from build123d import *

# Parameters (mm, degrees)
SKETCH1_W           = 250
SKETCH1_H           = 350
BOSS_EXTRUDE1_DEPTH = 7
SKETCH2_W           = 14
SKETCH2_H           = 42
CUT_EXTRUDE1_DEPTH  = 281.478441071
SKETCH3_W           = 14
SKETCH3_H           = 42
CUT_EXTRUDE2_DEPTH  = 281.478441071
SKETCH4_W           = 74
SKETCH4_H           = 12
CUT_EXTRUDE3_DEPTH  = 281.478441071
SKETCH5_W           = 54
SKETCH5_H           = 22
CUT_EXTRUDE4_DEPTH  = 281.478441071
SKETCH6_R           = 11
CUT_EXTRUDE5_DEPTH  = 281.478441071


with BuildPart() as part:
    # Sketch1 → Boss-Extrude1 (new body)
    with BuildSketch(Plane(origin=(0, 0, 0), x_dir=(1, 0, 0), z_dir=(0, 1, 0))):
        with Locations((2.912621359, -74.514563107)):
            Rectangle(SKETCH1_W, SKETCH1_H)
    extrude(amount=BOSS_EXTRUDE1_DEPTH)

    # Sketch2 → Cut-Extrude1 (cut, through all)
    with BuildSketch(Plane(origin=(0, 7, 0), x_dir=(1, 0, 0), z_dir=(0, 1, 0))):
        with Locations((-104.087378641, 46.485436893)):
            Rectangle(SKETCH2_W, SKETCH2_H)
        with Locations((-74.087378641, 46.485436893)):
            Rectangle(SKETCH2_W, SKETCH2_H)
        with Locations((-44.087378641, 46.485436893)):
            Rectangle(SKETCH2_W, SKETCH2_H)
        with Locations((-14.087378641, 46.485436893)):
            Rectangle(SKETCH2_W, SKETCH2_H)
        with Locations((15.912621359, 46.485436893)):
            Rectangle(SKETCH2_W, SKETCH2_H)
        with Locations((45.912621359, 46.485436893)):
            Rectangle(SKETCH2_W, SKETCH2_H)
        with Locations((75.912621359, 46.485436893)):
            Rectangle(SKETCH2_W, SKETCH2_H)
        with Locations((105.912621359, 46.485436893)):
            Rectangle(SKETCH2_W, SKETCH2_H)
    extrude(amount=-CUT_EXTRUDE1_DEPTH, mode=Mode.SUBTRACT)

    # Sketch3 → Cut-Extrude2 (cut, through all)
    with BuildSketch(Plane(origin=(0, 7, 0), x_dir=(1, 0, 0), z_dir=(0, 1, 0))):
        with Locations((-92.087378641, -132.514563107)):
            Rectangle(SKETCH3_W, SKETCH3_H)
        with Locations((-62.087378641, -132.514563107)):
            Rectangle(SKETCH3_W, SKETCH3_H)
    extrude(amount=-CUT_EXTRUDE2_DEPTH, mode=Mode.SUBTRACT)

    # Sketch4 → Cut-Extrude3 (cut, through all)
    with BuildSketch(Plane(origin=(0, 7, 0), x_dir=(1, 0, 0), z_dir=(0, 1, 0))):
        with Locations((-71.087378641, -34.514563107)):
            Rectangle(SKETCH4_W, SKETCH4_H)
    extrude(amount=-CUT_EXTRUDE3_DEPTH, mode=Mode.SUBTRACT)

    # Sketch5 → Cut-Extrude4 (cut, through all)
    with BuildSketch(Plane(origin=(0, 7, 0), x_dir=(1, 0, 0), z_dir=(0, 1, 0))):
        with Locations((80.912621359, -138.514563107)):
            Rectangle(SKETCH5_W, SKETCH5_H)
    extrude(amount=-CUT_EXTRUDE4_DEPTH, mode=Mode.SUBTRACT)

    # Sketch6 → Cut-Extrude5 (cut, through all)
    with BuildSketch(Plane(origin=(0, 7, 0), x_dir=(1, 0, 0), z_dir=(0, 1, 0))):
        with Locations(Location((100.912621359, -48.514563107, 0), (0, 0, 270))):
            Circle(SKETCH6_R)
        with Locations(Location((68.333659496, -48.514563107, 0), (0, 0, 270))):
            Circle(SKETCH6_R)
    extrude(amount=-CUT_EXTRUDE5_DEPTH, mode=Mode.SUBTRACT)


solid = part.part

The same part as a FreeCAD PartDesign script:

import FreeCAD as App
import Part
import Sketcher
from FreeCAD import Vector
Q = App.Units.Quantity

doc = App.newDocument("Part")
params = doc.addObject("Spreadsheet::Sheet", "Params")
for row, (alias, value) in enumerate([
    ("sketch1_width", "250 mm"),
    ("sketch1_height", "350 mm"),
    ("pad1_length", "7 mm"),
    ("sketch2_width", "14 mm"),
    ("sketch2_height", "42 mm"),
    ("sketch3_width", "14 mm"),
    ("sketch3_height", "42 mm"),
    ("sketch4_width", "74 mm"),
    ("sketch4_height", "12 mm"),
    ("sketch5_width", "54 mm"),
    ("sketch5_height", "22 mm"),
    ("sketch6_diameter", "22 mm"),
], start=1):
    params.set(f"A{row}", alias)
    params.set(f"B{row}", "=" + value)
    params.setAlias(f"B{row}", alias)

body = doc.addObject("PartDesign::Body", "Body")

# Sketch on XZ plane
sketch1 = doc.addObject("Sketcher::SketchObject", "Sketch")
body.addObject(sketch1)
sketch1.AttachmentSupport = (doc.XZ_Plane, [""])
sketch1.MapMode = "FlatFace"
sketch1.addGeometry(Part.LineSegment(Vector(-122.087379, -100.485437, 0), Vector(-122.087379, 249.514563, 0)), False)
sketch1.addGeometry(Part.LineSegment(Vector(-122.087379, 249.514563, 0), Vector(127.912621, 249.514563, 0)), False)
sketch1.addGeometry(Part.LineSegment(Vector(127.912621, 249.514563, 0), Vector(127.912621, -100.485437, 0)), False)
sketch1.addGeometry(Part.LineSegment(Vector(127.912621, -100.485437, 0), Vector(-122.087379, -100.485437, 0)), False)
sketch1.addConstraint(Sketcher.Constraint("Coincident", 0, 2, 1, 1))
sketch1.addConstraint(Sketcher.Constraint("Coincident", 1, 2, 2, 1))
sketch1.addConstraint(Sketcher.Constraint("Coincident", 2, 2, 3, 1))
sketch1.addConstraint(Sketcher.Constraint("Coincident", 3, 2, 0, 1))
sketch1.addConstraint(Sketcher.Constraint("Vertical", 0))
sketch1.addConstraint(Sketcher.Constraint("Horizontal", 1))
sketch1.addConstraint(Sketcher.Constraint("Vertical", 2))
sketch1.addConstraint(Sketcher.Constraint("Horizontal", 3))
sketch1.addConstraint(Sketcher.Constraint("DistanceX", 1, 1, 1, 2, Q("250 mm")))
sketch1.addConstraint(Sketcher.Constraint("DistanceY", 0, 1, 0, 2, Q("350 mm")))
sketch1.addConstraint(Sketcher.Constraint("DistanceX", 0, 2, -1, 1, Q("122.087379 mm")))
sketch1.addConstraint(Sketcher.Constraint("DistanceY", -1, 1, 0, 2, Q("249.514563 mm")))
sketch1.setExpression("Constraints[8]", "Params.sketch1_width")
sketch1.setExpression("Constraints[9]", "Params.sketch1_height")
pad1 = doc.addObject("PartDesign::Pad", "Pad")
body.addObject(pad1)
pad1.Profile = sketch1
pad1.setExpression("Length", "Params.pad1_length")
pad1.Reversed = True

# Sketch on XZ plane
sketch2 = doc.addObject("Sketcher::SketchObject", "Sketch001")
body.addObject(sketch2)
sketch2.AttachmentSupport = (doc.XZ_Plane, [""])
sketch2.MapMode = "FlatFace"
sketch2.AttachmentOffset = App.Placement(Vector(0, 0, -7), App.Rotation())
sketch2.addGeometry(Part.LineSegment(Vector(-111.087379, -67.485437, 0), Vector(-111.087379, -25.485437, 0)), False)
sketch2.addGeometry(Part.LineSegment(Vector(-111.087379, -25.485437, 0), Vector(-97.087379, -25.485437, 0)), False)
sketch2.addGeometry(Part.LineSegment(Vector(-97.087379, -25.485437, 0), Vector(-97.087379, -67.485437, 0)), False)
sketch2.addGeometry(Part.LineSegment(Vector(-97.087379, -67.485437, 0), Vector(-111.087379, -67.485437, 0)), False)
sketch2.addGeometry(Part.LineSegment(Vector(-81.087379, -67.485437, 0), Vector(-81.087379, -25.485437, 0)), False)
sketch2.addGeometry(Part.LineSegment(Vector(-81.087379, -25.485437, 0), Vector(-67.087379, -25.485437, 0)), False)
sketch2.addGeometry(Part.LineSegment(Vector(-67.087379, -25.485437, 0), Vector(-67.087379, -67.485437, 0)), False)
sketch2.addGeometry(Part.LineSegment(Vector(-67.087379, -67.485437, 0), Vector(-81.087379, -67.485437, 0)), False)
sketch2.addGeometry(Part.LineSegment(Vector(-51.087379, -67.485437, 0), Vector(-51.087379, -25.485437, 0)), False)
sketch2.addGeometry(Part.LineSegment(Vector(-51.087379, -25.485437, 0), Vector(-37.087379, -25.485437, 0)), False)
sketch2.addGeometry(Part.LineSegment(Vector(-37.087379, -25.485437, 0), Vector(-37.087379, -67.485437, 0)), False)
sketch2.addGeometry(Part.LineSegment(Vector(-37.087379, -67.485437, 0), Vector(-51.087379, -67.485437, 0)), False)
sketch2.addGeometry(Part.LineSegment(Vector(-21.087379, -67.485437, 0), Vector(-21.087379, -25.485437, 0)), False)
sketch2.addGeometry(Part.LineSegment(Vector(-21.087379, -25.485437, 0), Vector(-7.087379, -25.485437, 0)), False)
sketch2.addGeometry(Part.LineSegment(Vector(-7.087379, -25.485437, 0), Vector(-7.087379, -67.485437, 0)), False)
sketch2.addGeometry(Part.LineSegment(Vector(-7.087379, -67.485437, 0), Vector(-21.087379, -67.485437, 0)), False)
sketch2.addGeometry(Part.LineSegment(Vector(8.912621, -67.485437, 0), Vector(8.912621, -25.485437, 0)), False)
sketch2.addGeometry(Part.LineSegment(Vector(8.912621, -25.485437, 0), Vector(22.912621, -25.485437, 0)), False)
sketch2.addGeometry(Part.LineSegment(Vector(22.912621, -25.485437, 0), Vector(22.912621, -67.485437, 0)), False)
sketch2.addGeometry(Part.LineSegment(Vector(22.912621, -67.485437, 0), Vector(8.912621, -67.485437, 0)), False)
sketch2.addGeometry(Part.LineSegment(Vector(38.912621, -67.485437, 0), Vector(38.912621, -25.485437, 0)), False)
sketch2.addGeometry(Part.LineSegment(Vector(38.912621, -25.485437, 0), Vector(52.912621, -25.485437, 0)), False)
sketch2.addGeometry(Part.LineSegment(Vector(52.912621, -25.485437, 0), Vector(52.912621, -67.485437, 0)), False)
sketch2.addGeometry(Part.LineSegment(Vector(52.912621, -67.485437, 0), Vector(38.912621, -67.485437, 0)), False)
sketch2.addGeometry(Part.LineSegment(Vector(68.912621, -67.485437, 0), Vector(68.912621, -25.485437, 0)), False)
sketch2.addGeometry(Part.LineSegment(Vector(68.912621, -25.485437, 0), Vector(82.912621, -25.485437, 0)), False)
sketch2.addGeometry(Part.LineSegment(Vector(82.912621, -25.485437, 0), Vector(82.912621, -67.485437, 0)), False)
sketch2.addGeometry(Part.LineSegment(Vector(82.912621, -67.485437, 0), Vector(68.912621, -67.485437, 0)), False)
sketch2.addGeometry(Part.LineSegment(Vector(98.912621, -67.485437, 0), Vector(98.912621, -25.485437, 0)), False)
sketch2.addGeometry(Part.LineSegment(Vector(98.912621, -25.485437, 0), Vector(112.912621, -25.485437, 0)), False)
sketch2.addGeometry(Part.LineSegment(Vector(112.912621, -25.485437, 0), Vector(112.912621, -67.485437, 0)), False)
sketch2.addGeometry(Part.LineSegment(Vector(112.912621, -67.485437, 0), Vector(98.912621, -67.485437, 0)), False)
sketch2.addConstraint(Sketcher.Constraint("Coincident", 0, 2, 1, 1))
sketch2.addConstraint(Sketcher.Constraint("Coincident", 1, 2, 2, 1))
sketch2.addConstraint(Sketcher.Constraint("Coincident", 2, 2, 3, 1))
sketch2.addConstraint(Sketcher.Constraint("Coincident", 3, 2, 0, 1))
sketch2.addConstraint(Sketcher.Constraint("Coincident", 4, 2, 5, 1))
sketch2.addConstraint(Sketcher.Constraint("Coincident", 5, 2, 6, 1))
sketch2.addConstraint(Sketcher.Constraint("Coincident", 6, 2, 7, 1))
sketch2.addConstraint(Sketcher.Constraint("Coincident", 7, 2, 4, 1))
sketch2.addConstraint(Sketcher.Constraint("Coincident", 8, 2, 9, 1))
sketch2.addConstraint(Sketcher.Constraint("Coincident", 9, 2, 10, 1))
sketch2.addConstraint(Sketcher.Constraint("Coincident", 10, 2, 11, 1))
sketch2.addConstraint(Sketcher.Constraint("Coincident", 11, 2, 8, 1))
sketch2.addConstraint(Sketcher.Constraint("Coincident", 12, 2, 13, 1))
sketch2.addConstraint(Sketcher.Constraint("Coincident", 13, 2, 14, 1))
sketch2.addConstraint(Sketcher.Constraint("Coincident", 14, 2, 15, 1))
sketch2.addConstraint(Sketcher.Constraint("Coincident", 15, 2, 12, 1))
sketch2.addConstraint(Sketcher.Constraint("Coincident", 16, 2, 17, 1))
sketch2.addConstraint(Sketcher.Constraint("Coincident", 17, 2, 18, 1))
sketch2.addConstraint(Sketcher.Constraint("Coincident", 18, 2, 19, 1))
sketch2.addConstraint(Sketcher.Constraint("Coincident", 19, 2, 16, 1))
sketch2.addConstraint(Sketcher.Constraint("Coincident", 20, 2, 21, 1))
sketch2.addConstraint(Sketcher.Constraint("Coincident", 21, 2, 22, 1))
sketch2.addConstraint(Sketcher.Constraint("Coincident", 22, 2, 23, 1))
sketch2.addConstraint(Sketcher.Constraint("Coincident", 23, 2, 20, 1))
sketch2.addConstraint(Sketcher.Constraint("Coincident", 24, 2, 25, 1))
sketch2.addConstraint(Sketcher.Constraint("Coincident", 25, 2, 26, 1))
sketch2.addConstraint(Sketcher.Constraint("Coincident", 26, 2, 27, 1))
sketch2.addConstraint(Sketcher.Constraint("Coincident", 27, 2, 24, 1))
sketch2.addConstraint(Sketcher.Constraint("Coincident", 28, 2, 29, 1))
sketch2.addConstraint(Sketcher.Constraint("Coincident", 29, 2, 30, 1))
sketch2.addConstraint(Sketcher.Constraint("Coincident", 30, 2, 31, 1))
sketch2.addConstraint(Sketcher.Constraint("Coincident", 31, 2, 28, 1))
sketch2.addConstraint(Sketcher.Constraint("Vertical", 0))
sketch2.addConstraint(Sketcher.Constraint("Horizontal", 1))
sketch2.addConstraint(Sketcher.Constraint("Vertical", 2))
sketch2.addConstraint(Sketcher.Constraint("Horizontal", 3))
sketch2.addConstraint(Sketcher.Constraint("Vertical", 4))
sketch2.addConstraint(Sketcher.Constraint("Horizontal", 5))
sketch2.addConstraint(Sketcher.Constraint("Vertical", 6))
sketch2.addConstraint(Sketcher.Constraint("Horizontal", 7))
sketch2.addConstraint(Sketcher.Constraint("Vertical", 8))
sketch2.addConstraint(Sketcher.Constraint("Horizontal", 9))
sketch2.addConstraint(Sketcher.Constraint("Vertical", 10))
sketch2.addConstraint(Sketcher.Constraint("Horizontal", 11))
sketch2.addConstraint(Sketcher.Constraint("Vertical", 12))
sketch2.addConstraint(Sketcher.Constraint("Horizontal", 13))
sketch2.addConstraint(Sketcher.Constraint("Vertical", 14))
sketch2.addConstraint(Sketcher.Constraint("Horizontal", 15))
sketch2.addConstraint(Sketcher.Constraint("Vertical", 16))
sketch2.addConstraint(Sketcher.Constraint("Horizontal", 17))
sketch2.addConstraint(Sketcher.Constraint("Vertical", 18))
sketch2.addConstraint(Sketcher.Constraint("Horizontal", 19))
sketch2.addConstraint(Sketcher.Constraint("Vertical", 20))
sketch2.addConstraint(Sketcher.Constraint("Horizontal", 21))
sketch2.addConstraint(Sketcher.Constraint("Vertical", 22))
sketch2.addConstraint(Sketcher.Constraint("Horizontal", 23))
sketch2.addConstraint(Sketcher.Constraint("Vertical", 24))
sketch2.addConstraint(Sketcher.Constraint("Horizontal", 25))
sketch2.addConstraint(Sketcher.Constraint("Vertical", 26))
sketch2.addConstraint(Sketcher.Constraint("Horizontal", 27))
sketch2.addConstraint(Sketcher.Constraint("Vertical", 28))
sketch2.addConstraint(Sketcher.Constraint("Horizontal", 29))
sketch2.addConstraint(Sketcher.Constraint("Vertical", 30))
sketch2.addConstraint(Sketcher.Constraint("Horizontal", 31))
sketch2.addConstraint(Sketcher.Constraint("Horizontal", 1, 2, 4, 2))
sketch2.addConstraint(Sketcher.Constraint("Horizontal", 3, 2, 6, 2))
sketch2.addConstraint(Sketcher.Constraint("Horizontal", 5, 2, 8, 2))
sketch2.addConstraint(Sketcher.Constraint("Horizontal", 7, 2, 10, 2))
sketch2.addConstraint(Sketcher.Constraint("Horizontal", 9, 2, 12, 2))
sketch2.addConstraint(Sketcher.Constraint("Horizontal", 11, 2, 14, 2))
sketch2.addConstraint(Sketcher.Constraint("Horizontal", 13, 2, 16, 2))
sketch2.addConstraint(Sketcher.Constraint("Horizontal", 15, 2, 18, 2))
sketch2.addConstraint(Sketcher.Constraint("Horizontal", 17, 2, 20, 2))
sketch2.addConstraint(Sketcher.Constraint("Horizontal", 19, 2, 22, 2))
sketch2.addConstraint(Sketcher.Constraint("Horizontal", 21, 2, 24, 2))
sketch2.addConstraint(Sketcher.Constraint("Horizontal", 23, 2, 26, 2))
sketch2.addConstraint(Sketcher.Constraint("Horizontal", 25, 2, 28, 2))
sketch2.addConstraint(Sketcher.Constraint("Horizontal", 27, 2, 30, 2))
sketch2.addConstraint(Sketcher.Constraint("Equal", 3, 5))
sketch2.addConstraint(Sketcher.Constraint("Equal", 7, 9))
sketch2.addConstraint(Sketcher.Constraint("Equal", 11, 13))
sketch2.addConstraint(Sketcher.Constraint("Equal", 15, 17))
sketch2.addConstraint(Sketcher.Constraint("Equal", 19, 21))
sketch2.addConstraint(Sketcher.Constraint("Equal", 23, 25))
sketch2.addConstraint(Sketcher.Constraint("Equal", 27, 29))
sketch2.addConstraint(Sketcher.Constraint("DistanceX", 1, 1, 1, 2, Q("14 mm")))
sketch2.addConstraint(Sketcher.Constraint("DistanceY", 0, 1, 0, 2, Q("42 mm")))
sketch2.addConstraint(Sketcher.Constraint("DistanceX", 1, 2, 4, 2, Q("16 mm")))
sketch2.addConstraint(Sketcher.Constraint("DistanceX", 5, 2, 8, 2, Q("16 mm")))
sketch2.addConstraint(Sketcher.Constraint("DistanceX", 9, 2, 12, 2, Q("16 mm")))
sketch2.addConstraint(Sketcher.Constraint("DistanceX", 13, 2, 16, 2, Q("16 mm")))
sketch2.addConstraint(Sketcher.Constraint("DistanceX", 17, 2, 20, 2, Q("16 mm")))
sketch2.addConstraint(Sketcher.Constraint("DistanceX", 21, 2, 24, 2, Q("16 mm")))
sketch2.addConstraint(Sketcher.Constraint("DistanceX", 25, 2, 28, 2, Q("16 mm")))
sketch2.addConstraint(Sketcher.Constraint("DistanceX", 0, 2, -1, 1, Q("111.087379 mm")))
sketch2.addConstraint(Sketcher.Constraint("DistanceY", 0, 2, -1, 1, Q("25.485437 mm")))
sketch2.setExpression("Constraints[85]", "Params.sketch2_width")
sketch2.setExpression("Constraints[86]", "Params.sketch2_height")
pocket1 = doc.addObject("PartDesign::Pocket", "Pocket")
body.addObject(pocket1)
pocket1.Profile = sketch2
pocket1.Type = "ThroughAll"
pocket1.Reversed = True

# Sketch on XZ plane
sketch3 = doc.addObject("Sketcher::SketchObject", "Sketch002")
body.addObject(sketch3)
sketch3.AttachmentSupport = (doc.XZ_Plane, [""])
sketch3.MapMode = "FlatFace"
sketch3.AttachmentOffset = App.Placement(Vector(0, 0, -7), App.Rotation())
sketch3.addGeometry(Part.LineSegment(Vector(-99.087379, 111.514563, 0), Vector(-99.087379, 153.514563, 0)), False)
sketch3.addGeometry(Part.LineSegment(Vector(-99.087379, 153.514563, 0), Vector(-85.087379, 153.514563, 0)), False)
sketch3.addGeometry(Part.LineSegment(Vector(-85.087379, 153.514563, 0), Vector(-85.087379, 111.514563, 0)), False)
sketch3.addGeometry(Part.LineSegment(Vector(-85.087379, 111.514563, 0), Vector(-99.087379, 111.514563, 0)), False)
sketch3.addGeometry(Part.LineSegment(Vector(-69.087379, 111.514563, 0), Vector(-69.087379, 153.514563, 0)), False)
sketch3.addGeometry(Part.LineSegment(Vector(-69.087379, 153.514563, 0), Vector(-55.087379, 153.514563, 0)), False)
sketch3.addGeometry(Part.LineSegment(Vector(-55.087379, 153.514563, 0), Vector(-55.087379, 111.514563, 0)), False)
sketch3.addGeometry(Part.LineSegment(Vector(-55.087379, 111.514563, 0), Vector(-69.087379, 111.514563, 0)), False)
sketch3.addConstraint(Sketcher.Constraint("Coincident", 0, 2, 1, 1))
sketch3.addConstraint(Sketcher.Constraint("Coincident", 1, 2, 2, 1))
sketch3.addConstraint(Sketcher.Constraint("Coincident", 2, 2, 3, 1))
sketch3.addConstraint(Sketcher.Constraint("Coincident", 3, 2, 0, 1))
sketch3.addConstraint(Sketcher.Constraint("Coincident", 4, 2, 5, 1))
sketch3.addConstraint(Sketcher.Constraint("Coincident", 5, 2, 6, 1))
sketch3.addConstraint(Sketcher.Constraint("Coincident", 6, 2, 7, 1))
sketch3.addConstraint(Sketcher.Constraint("Coincident", 7, 2, 4, 1))
sketch3.addConstraint(Sketcher.Constraint("Vertical", 0))
sketch3.addConstraint(Sketcher.Constraint("Horizontal", 1))
sketch3.addConstraint(Sketcher.Constraint("Vertical", 2))
sketch3.addConstraint(Sketcher.Constraint("Horizontal", 3))
sketch3.addConstraint(Sketcher.Constraint("Vertical", 4))
sketch3.addConstraint(Sketcher.Constraint("Horizontal", 5))
sketch3.addConstraint(Sketcher.Constraint("Vertical", 6))
sketch3.addConstraint(Sketcher.Constraint("Horizontal", 7))
sketch3.addConstraint(Sketcher.Constraint("Horizontal", 1, 2, 4, 2))
sketch3.addConstraint(Sketcher.Constraint("Horizontal", 3, 2, 6, 2))
sketch3.addConstraint(Sketcher.Constraint("Equal", 3, 5))
sketch3.addConstraint(Sketcher.Constraint("DistanceX", 1, 1, 1, 2, Q("14 mm")))
sketch3.addConstraint(Sketcher.Constraint("DistanceY", 0, 1, 0, 2, Q("42 mm")))
sketch3.addConstraint(Sketcher.Constraint("DistanceX", 1, 2, 4, 2, Q("16 mm")))
sketch3.addConstraint(Sketcher.Constraint("DistanceX", 0, 2, -1, 1, Q("99.087379 mm")))
sketch3.addConstraint(Sketcher.Constraint("DistanceY", -1, 1, 0, 2, Q("153.514563 mm")))
sketch3.setExpression("Constraints[19]", "Params.sketch3_width")
sketch3.setExpression("Constraints[20]", "Params.sketch3_height")
pocket2 = doc.addObject("PartDesign::Pocket", "Pocket001")
body.addObject(pocket2)
pocket2.Profile = sketch3
pocket2.Type = "ThroughAll"
pocket2.Reversed = True

# Sketch on XZ plane
sketch4 = doc.addObject("Sketcher::SketchObject", "Sketch003")
body.addObject(sketch4)
sketch4.AttachmentSupport = (doc.XZ_Plane, [""])
sketch4.MapMode = "FlatFace"
sketch4.AttachmentOffset = App.Placement(Vector(0, 0, -7), App.Rotation())
sketch4.addGeometry(Part.LineSegment(Vector(-108.087379, 28.514563, 0), Vector(-108.087379, 40.514563, 0)), False)
sketch4.addGeometry(Part.LineSegment(Vector(-108.087379, 40.514563, 0), Vector(-34.087379, 40.514563, 0)), False)
sketch4.addGeometry(Part.LineSegment(Vector(-34.087379, 40.514563, 0), Vector(-34.087379, 28.514563, 0)), False)
sketch4.addGeometry(Part.LineSegment(Vector(-34.087379, 28.514563, 0), Vector(-108.087379, 28.514563, 0)), False)
sketch4.addConstraint(Sketcher.Constraint("Coincident", 0, 2, 1, 1))
sketch4.addConstraint(Sketcher.Constraint("Coincident", 1, 2, 2, 1))
sketch4.addConstraint(Sketcher.Constraint("Coincident", 2, 2, 3, 1))
sketch4.addConstraint(Sketcher.Constraint("Coincident", 3, 2, 0, 1))
sketch4.addConstraint(Sketcher.Constraint("Vertical", 0))
sketch4.addConstraint(Sketcher.Constraint("Horizontal", 1))
sketch4.addConstraint(Sketcher.Constraint("Vertical", 2))
sketch4.addConstraint(Sketcher.Constraint("Horizontal", 3))
sketch4.addConstraint(Sketcher.Constraint("DistanceX", 1, 1, 1, 2, Q("74 mm")))
sketch4.addConstraint(Sketcher.Constraint("DistanceY", 0, 1, 0, 2, Q("12 mm")))
sketch4.addConstraint(Sketcher.Constraint("DistanceX", 0, 2, -1, 1, Q("108.087379 mm")))
sketch4.addConstraint(Sketcher.Constraint("DistanceY", -1, 1, 0, 2, Q("40.514563 mm")))
sketch4.setExpression("Constraints[8]", "Params.sketch4_width")
sketch4.setExpression("Constraints[9]", "Params.sketch4_height")
pocket3 = doc.addObject("PartDesign::Pocket", "Pocket002")
body.addObject(pocket3)
pocket3.Profile = sketch4
pocket3.Type = "ThroughAll"
pocket3.Reversed = True

# Sketch on XZ plane
sketch5 = doc.addObject("Sketcher::SketchObject", "Sketch004")
body.addObject(sketch5)
sketch5.AttachmentSupport = (doc.XZ_Plane, [""])
sketch5.MapMode = "FlatFace"
sketch5.AttachmentOffset = App.Placement(Vector(0, 0, -7), App.Rotation())
sketch5.addGeometry(Part.LineSegment(Vector(53.912621, 127.514563, 0), Vector(53.912621, 149.514563, 0)), False)
sketch5.addGeometry(Part.LineSegment(Vector(53.912621, 149.514563, 0), Vector(107.912621, 149.514563, 0)), False)
sketch5.addGeometry(Part.LineSegment(Vector(107.912621, 149.514563, 0), Vector(107.912621, 127.514563, 0)), False)
sketch5.addGeometry(Part.LineSegment(Vector(107.912621, 127.514563, 0), Vector(53.912621, 127.514563, 0)), False)
sketch5.addConstraint(Sketcher.Constraint("Coincident", 0, 2, 1, 1))
sketch5.addConstraint(Sketcher.Constraint("Coincident", 1, 2, 2, 1))
sketch5.addConstraint(Sketcher.Constraint("Coincident", 2, 2, 3, 1))
sketch5.addConstraint(Sketcher.Constraint("Coincident", 3, 2, 0, 1))
sketch5.addConstraint(Sketcher.Constraint("Vertical", 0))
sketch5.addConstraint(Sketcher.Constraint("Horizontal", 1))
sketch5.addConstraint(Sketcher.Constraint("Vertical", 2))
sketch5.addConstraint(Sketcher.Constraint("Horizontal", 3))
sketch5.addConstraint(Sketcher.Constraint("DistanceX", 1, 1, 1, 2, Q("54 mm")))
sketch5.addConstraint(Sketcher.Constraint("DistanceY", 0, 1, 0, 2, Q("22 mm")))
sketch5.addConstraint(Sketcher.Constraint("DistanceX", -1, 1, 0, 2, Q("53.912621 mm")))
sketch5.addConstraint(Sketcher.Constraint("DistanceY", -1, 1, 0, 2, Q("149.514563 mm")))
sketch5.setExpression("Constraints[8]", "Params.sketch5_width")
sketch5.setExpression("Constraints[9]", "Params.sketch5_height")
pocket4 = doc.addObject("PartDesign::Pocket", "Pocket003")
body.addObject(pocket4)
pocket4.Profile = sketch5
pocket4.Type = "ThroughAll"
pocket4.Reversed = True

# Sketch on XZ plane
sketch6 = doc.addObject("Sketcher::SketchObject", "Sketch005")
body.addObject(sketch6)
sketch6.AttachmentSupport = (doc.XZ_Plane, [""])
sketch6.MapMode = "FlatFace"
sketch6.AttachmentOffset = App.Placement(Vector(0, 0, -7), App.Rotation())
sketch6.addGeometry(Part.Circle(Vector(100.912621, 48.514563, 0), Vector(0, 0, 1), 11), False)
sketch6.addGeometry(Part.Circle(Vector(68.333659, 48.514563, 0), Vector(0, 0, 1), 11), False)
sketch6.addConstraint(Sketcher.Constraint("Equal", 0, 1))
sketch6.addConstraint(Sketcher.Constraint("Horizontal", 0, 3, 1, 3))
sketch6.addConstraint(Sketcher.Constraint("Diameter", 0, Q("22 mm")))
sketch6.addConstraint(Sketcher.Constraint("DistanceX", -1, 1, 0, 3, Q("100.912621 mm")))
sketch6.addConstraint(Sketcher.Constraint("DistanceX", -1, 1, 1, 3, Q("68.333659 mm")))
sketch6.addConstraint(Sketcher.Constraint("DistanceY", -1, 1, 0, 3, Q("48.514563 mm")))
sketch6.setExpression("Constraints[2]", "Params.sketch6_diameter")
pocket5 = doc.addObject("PartDesign::Pocket", "Pocket004")
body.addObject(pocket5)
pocket5.Profile = sketch6
pocket5.Type = "ThroughAll"
pocket5.Reversed = True

doc.recompute()
